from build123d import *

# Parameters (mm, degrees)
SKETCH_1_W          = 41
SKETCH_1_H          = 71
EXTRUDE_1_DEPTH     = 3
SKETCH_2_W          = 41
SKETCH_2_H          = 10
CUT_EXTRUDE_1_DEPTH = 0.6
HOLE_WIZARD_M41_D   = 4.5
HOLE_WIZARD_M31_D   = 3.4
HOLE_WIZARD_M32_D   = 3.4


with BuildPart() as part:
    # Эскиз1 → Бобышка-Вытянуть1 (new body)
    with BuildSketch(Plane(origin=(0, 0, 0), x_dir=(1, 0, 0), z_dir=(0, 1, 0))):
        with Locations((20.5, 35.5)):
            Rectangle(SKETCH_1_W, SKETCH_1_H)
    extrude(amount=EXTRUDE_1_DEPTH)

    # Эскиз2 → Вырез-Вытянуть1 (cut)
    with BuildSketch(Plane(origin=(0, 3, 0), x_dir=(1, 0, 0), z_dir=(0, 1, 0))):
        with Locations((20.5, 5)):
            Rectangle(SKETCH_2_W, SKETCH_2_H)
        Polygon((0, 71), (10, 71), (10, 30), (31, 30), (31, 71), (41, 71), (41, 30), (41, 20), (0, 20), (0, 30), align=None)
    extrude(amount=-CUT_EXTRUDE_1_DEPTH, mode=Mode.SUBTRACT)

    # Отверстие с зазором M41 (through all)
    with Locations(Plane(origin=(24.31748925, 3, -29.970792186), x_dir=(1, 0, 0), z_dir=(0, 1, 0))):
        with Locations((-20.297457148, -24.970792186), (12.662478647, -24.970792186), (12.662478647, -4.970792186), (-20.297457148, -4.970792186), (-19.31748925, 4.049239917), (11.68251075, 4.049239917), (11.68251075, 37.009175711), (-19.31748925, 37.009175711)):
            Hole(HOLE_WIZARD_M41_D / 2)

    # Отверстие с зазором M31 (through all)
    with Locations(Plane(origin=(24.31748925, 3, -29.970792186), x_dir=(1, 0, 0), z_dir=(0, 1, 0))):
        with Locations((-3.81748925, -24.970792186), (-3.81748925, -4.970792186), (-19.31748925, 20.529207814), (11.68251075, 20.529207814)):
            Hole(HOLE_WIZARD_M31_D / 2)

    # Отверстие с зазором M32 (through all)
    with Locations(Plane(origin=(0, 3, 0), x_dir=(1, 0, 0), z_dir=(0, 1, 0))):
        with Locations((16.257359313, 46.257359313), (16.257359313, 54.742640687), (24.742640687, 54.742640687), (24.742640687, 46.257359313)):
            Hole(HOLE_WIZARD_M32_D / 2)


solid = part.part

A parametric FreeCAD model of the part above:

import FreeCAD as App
import Part
import Sketcher
from FreeCAD import Vector
Q = App.Units.Quantity

doc = App.newDocument("Part")
body = doc.addObject("PartDesign::Body", "Body")

# Sketch on XZ plane
sketch1 = doc.addObject("Sketcher::SketchObject", "Sketch")
body.addObject(sketch1)
sketch1.AttachmentSupport = (doc.XZ_Plane, [""])
sketch1.MapMode = "FlatFace"
sketch1.addGeometry([
    Part.LineSegment(Vector(0, -71, 0), Vector(0, 0, 0)),
    Part.LineSegment(Vector(0, 0, 0), Vector(41, 0, 0)),
    Part.LineSegment(Vector(41, 0, 0), Vector(41, -71, 0)),
    Part.LineSegment(Vector(41, -71, 0), Vector(0, -71, 0)),
], False)
sketch1.addConstraint([
    Sketcher.Constraint("Coincident", 0, 2, 1, 1),
    Sketcher.Constraint("Coincident", 1, 2, 2, 1),
    Sketcher.Constraint("Coincident", 2, 2, 3, 1),
    Sketcher.Constraint("Coincident", 3, 2, 0, 1),
    Sketcher.Constraint("Vertical", 0),
    Sketcher.Constraint("Horizontal", 1),
    Sketcher.Constraint("Vertical", 2),
    Sketcher.Constraint("Horizontal", 3),
    Sketcher.Constraint("Coincident", 0, 2, -1, 1),
    Sketcher.Constraint("DistanceX", 1, 1, 1, 2, Q("41 mm")),
    Sketcher.Constraint("DistanceY", 0, 1, 0, 2, Q("71 mm")),
])
pad1 = doc.addObject("PartDesign::Pad", "Pad")
body.addObject(pad1)
pad1.Profile = sketch1
pad1.Length = 3
pad1.Reversed = True

# Sketch on XZ plane
sketch2 = doc.addObject("Sketcher::SketchObject", "Sketch001")
body.addObject(sketch2)
sketch2.AttachmentSupport = (doc.XZ_Plane, [""])
sketch2.MapMode = "FlatFace"
sketch2.AttachmentOffset = App.Placement(Vector(0, 0, -3), App.Rotation())
sketch2.addGeometry([
    Part.LineSegment(Vector(0, -10, 0), Vector(0, 0, 0)),  # 0
    Part.LineSegment(Vector(0, 0, 0), Vector(41, 0, 0)),  # 1
    Part.LineSegment(Vector(41, 0, 0), Vector(41, -10, 0)),  # 2
    Part.LineSegment(Vector(41, -10, 0), Vector(0, -10, 0)),  # 3
    Part.LineSegment(Vector(10, -71, 0), Vector(0, -71, 0)),  # 4
    Part.LineSegment(Vector(0, -71, 0), Vector(0, -20, 0)),  # 5
    Part.LineSegment(Vector(0, -20, 0), Vector(41, -20, 0)),  # 6
    Part.LineSegment(Vector(41, -20, 0), Vector(41, -71, 0)),  # 7
    Part.LineSegment(Vector(41, -71, 0), Vector(31, -71, 0)),  # 8
    Part.LineSegment(Vector(31, -71, 0), Vector(31, -30, 0)),  # 9
    Part.LineSegment(Vector(31, -30, 0), Vector(10, -30, 0)),  # 10
    Part.LineSegment(Vector(10, -30, 0), Vector(10, -71, 0)),  # 11
], False)
sketch2.addConstraint([
    Sketcher.Constraint("Coincident", 0, 2, 1, 1),
    Sketcher.Constraint("Coincident", 1, 2, 2, 1),
    Sketcher.Constraint("Coincident", 2, 2, 3, 1),
    Sketcher.Constraint("Coincident", 3, 2, 0, 1),
    Sketcher.Constraint("Coincident", 4, 2, 5, 1),
    Sketcher.Constraint("Coincident", 5, 2, 6, 1),
    Sketcher.Constraint("Coincident", 6, 2, 7, 1),
    Sketcher.Constraint("Coincident", 7, 2, 8, 1),
    Sketcher.Constraint("Coincident", 8, 2, 9, 1),
    Sketcher.Constraint("Coincident", 9, 2, 10, 1),
    Sketcher.Constraint("Coincident", 10, 2, 11, 1),
    Sketcher.Constraint("Coincident", 11, 2, 4, 1),
    Sketcher.Constraint("Vertical", 0),
    Sketcher.Constraint("Horizontal", 1),
    Sketcher.Constraint("Vertical", 2),
    Sketcher.Constraint("Horizontal", 3),
    Sketcher.Constraint("Horizontal", 4),
    Sketcher.Constraint("Vertical", 5),
    Sketcher.Constraint("Horizontal", 6),
    Sketcher.Constraint("Vertical", 7),
    Sketcher.Constraint("Horizontal", 8),
    Sketcher.Constraint("Vertical", 9),
    Sketcher.Constraint("Horizontal", 10),
    Sketcher.Constraint("Vertical", 11),
    Sketcher.Constraint("Coincident", 0, 2, -1, 1),
    Sketcher.Constraint("PointOnObject", 4, 2, -2),
    Sketcher.Constraint("Horizontal", 4, 2, 7, 2),
    Sketcher.Constraint("Vertical", 2, 2, 6, 2),
    Sketcher.Constraint("Equal", 4, 8),
    Sketcher.Constraint("Equal", 8, 0),
    Sketcher.Constraint("Equal", 6, 9),
    Sketcher.Constraint("DistanceX", 1, 1, 1, 2, Q("41 mm")),
    Sketcher.Constraint("DistanceX", 4, 2, 4, 1, Q("10 mm")),
    Sketcher.Constraint("DistanceY", 5, 1, 5, 2, Q("51 mm")),
    Sketcher.Constraint("DistanceY", 4, 2, -1, 1, Q("71 mm")),
])
pocket1 = doc.addObject("PartDesign::Pocket", "Pocket")
body.addObject(pocket1)
pocket1.Profile = sketch2
pocket1.Length = 0.6
pocket1.Reversed = True

# Sketch on XZ plane
sketch3 = doc.addObject("Sketcher::SketchObject", "Sketch002")
body.addObject(sketch3)
sketch3.AttachmentSupport = (doc.XZ_Plane, [""])
sketch3.MapMode = "FlatFace"
sketch3.AttachmentOffset = App.Placement(Vector(0, 0, -3), App.Rotation())
sketch3.addGeometry([
    Part.Circle(Vector(4.020032, -5, 0), Vector(0, 0, 1), 2.25),  # 0
    Part.Circle(Vector(36.979968, -5, 0), Vector(0, 0, 1), 2.25),  # 1
    Part.Circle(Vector(36.979968, -25, 0), Vector(0, 0, 1), 2.25),  # 2
    Part.Circle(Vector(4.020032, -25, 0), Vector(0, 0, 1), 2.25),  # 3
    Part.Circle(Vector(5, -34.020032, 0), Vector(0, 0, 1), 2.25),  # 4
    Part.Circle(Vector(36, -34.020032, 0), Vector(0, 0, 1), 2.25),  # 5
    Part.Circle(Vector(36, -66.979968, 0), Vector(0, 0, 1), 2.25),  # 6
    Part.Circle(Vector(5, -66.979968, 0), Vector(0, 0, 1), 2.25),  # 7
], False)
sketch3.addConstraint([
    Sketcher.Constraint("Equal", 0, 1),
    Sketcher.Constraint("Equal", 1, 2),
    Sketcher.Constraint("Equal", 2, 3),
    Sketcher.Constraint("Equal", 3, 4),
    Sketcher.Constraint("Equal", 4, 5),
    Sketcher.Constraint("Equal", 5, 6),
    Sketcher.Constraint("Equal", 6, 7),
    Sketcher.Constraint("Horizontal", 0, 3, 1, 3),
    Sketcher.Constraint("Horizontal", 2, 3, 3, 3),
    Sketcher.Constraint("Horizontal", 4, 3, 5, 3),
    Sketcher.Constraint("Horizontal", 6, 3, 7, 3),
    Sketcher.Constraint("Vertical", 1, 3, 2, 3),
    Sketcher.Constraint("Vertical", 0, 3, 3, 3),
    Sketcher.Constraint("Vertical", 5, 3, 6, 3),
    Sketcher.Constraint("Vertical", 4, 3, 7, 3),
    Sketcher.Constraint("Diameter", 0, Q("4.5 mm")),
    Sketcher.Constraint("DistanceY", 0, 3, -1, 1, Q("5 mm")),
    Sketcher.Constraint("DistanceY", 2, 3, -1, 1, Q("25 mm")),
    Sketcher.Constraint("DistanceX", -1, 1, 4, 3, Q("5 mm")),
    Sketcher.Constraint("DistanceX", -1, 1, 5, 3, Q("36 mm")),
    Sketcher.Constraint("DistanceX", -1, 1, 0, 3, Q("4.020032 mm")),
    Sketcher.Constraint("DistanceX", -1, 1, 1, 3, Q("36.979968 mm")),
    Sketcher.Constraint("DistanceY", 4, 3, -1, 1, Q("34.020032 mm")),
    Sketcher.Constraint("DistanceY", 6, 3, -1, 1, Q("66.979968 mm")),
])
doc.recompute()
hole = doc.addObject("PartDesign::Hole", "Hole")
body.addObject(hole)
hole.Profile = sketch3
hole.ThreadType = "None"
hole.Diameter = 4.5
hole.DepthType = "ThroughAll"
hole.Reversed = True

# Sketch on XZ plane
sketch4 = doc.addObject("Sketcher::SketchObject", "Sketch003")
body.addObject(sketch4)
sketch4.AttachmentSupport = (doc.XZ_Plane, [""])
sketch4.MapMode = "FlatFace"
sketch4.AttachmentOffset = App.Placement(Vector(0, 0, -3), App.Rotation())
sketch4.addGeometry([
    Part.Circle(Vector(20.5, -5, 0), Vector(0, 0, 1), 1.7),
    Part.Circle(Vector(20.5, -25, 0), Vector(0, 0, 1), 1.7),
    Part.Circle(Vector(5, -50.5, 0), Vector(0, 0, 1), 1.7),
    Part.Circle(Vector(36, -50.5, 0), Vector(0, 0, 1), 1.7),
], False)
sketch4.addConstraint([
    Sketcher.Constraint("Equal", 0, 1),
    Sketcher.Constraint("Equal", 1, 2),
    Sketcher.Constraint("Equal", 2, 3),
    Sketcher.Constraint("Horizontal", 2, 3, 3, 3),
    Sketcher.Constraint("Vertical", 0, 3, 1, 3),
    Sketcher.Constraint("Diameter", 0, Q("3.4 mm")),
    Sketcher.Constraint("DistanceY", 0, 3, -1, 1, Q("5 mm")),
    Sketcher.Constraint("DistanceY", 1, 3, -1, 1, Q("25 mm")),
    Sketcher.Constraint("DistanceX", -1, 1, 2, 3, Q("5 mm")),
    Sketcher.Constraint("DistanceX", -1, 1, 3, 3, Q("36 mm")),
    Sketcher.Constraint("DistanceX", -1, 1, 0, 3, Q("20.5 mm")),
    Sketcher.Constraint("DistanceY", 2, 3, -1, 1, Q("50.5 mm")),
])
doc.recompute()
hole2 = doc.addObject("PartDesign::Hole", "Hole001")
body.addObject(hole2)
hole2.Profile = sketch4
hole2.ThreadType = "None"
hole2.Diameter = 3.4
hole2.DepthType = "ThroughAll"
hole2.Reversed = True

# Sketch on XZ plane
sketch5 = doc.addObject("Sketcher::SketchObject", "Sketch004")
body.addObject(sketch5)
sketch5.AttachmentSupport = (doc.XZ_Plane, [""])
sketch5.MapMode = "FlatFace"
sketch5.AttachmentOffset = App.Placement(Vector(0, 0, -3), App.Rotation())
sketch5.addGeometry([
    Part.Circle(Vector(16.257359, -46.257359, 0), Vector(0, 0, 1), 1.7),
    Part.Circle(Vector(16.257359, -54.742641, 0), Vector(0, 0, 1), 1.7),
    Part.Circle(Vector(24.742641, -54.742641, 0), Vector(0, 0, 1), 1.7),
    Part.Circle(Vector(24.742641, -46.257359, 0), Vector(0, 0, 1), 1.7),
], False)
sketch5.addConstraint([
    Sketcher.Constraint("Equal", 0, 1),
    Sketcher.Constraint("Equal", 1, 2),
    Sketcher.Constraint("Equal", 2, 3),
    Sketcher.Constraint("Horizontal", 1, 3, 2, 3),
    Sketcher.Constraint("Horizontal", 0, 3, 3, 3),
    Sketcher.Constraint("Vertical", 0, 3, 1, 3),
    Sketcher.Constraint("Vertical", 2, 3, 3, 3),
    Sketcher.Constraint("Diameter", 0, Q("3.4 mm")),
    Sketcher.Constraint("DistanceX", -1, 1, 0, 3, Q("16.257359 mm")),
    Sketcher.Constraint("DistanceY", 0, 3, -1, 1, Q("46.257359 mm")),
    Sketcher.Constraint("DistanceY", 1, 3, -1, 1, Q("54.742641 mm")),
    Sketcher.Constraint("DistanceX", -1, 1, 2, 3, Q("24.742641 mm")),
])
doc.recompute()
hole3 = doc.addObject("PartDesign::Hole", "Hole002")
body.addObject(hole3)
hole3.Profile = sketch5
hole3.ThreadType = "None"
hole3.Diameter = 3.4
hole3.DepthType = "ThroughAll"
hole3.Reversed = True

doc.recompute()
